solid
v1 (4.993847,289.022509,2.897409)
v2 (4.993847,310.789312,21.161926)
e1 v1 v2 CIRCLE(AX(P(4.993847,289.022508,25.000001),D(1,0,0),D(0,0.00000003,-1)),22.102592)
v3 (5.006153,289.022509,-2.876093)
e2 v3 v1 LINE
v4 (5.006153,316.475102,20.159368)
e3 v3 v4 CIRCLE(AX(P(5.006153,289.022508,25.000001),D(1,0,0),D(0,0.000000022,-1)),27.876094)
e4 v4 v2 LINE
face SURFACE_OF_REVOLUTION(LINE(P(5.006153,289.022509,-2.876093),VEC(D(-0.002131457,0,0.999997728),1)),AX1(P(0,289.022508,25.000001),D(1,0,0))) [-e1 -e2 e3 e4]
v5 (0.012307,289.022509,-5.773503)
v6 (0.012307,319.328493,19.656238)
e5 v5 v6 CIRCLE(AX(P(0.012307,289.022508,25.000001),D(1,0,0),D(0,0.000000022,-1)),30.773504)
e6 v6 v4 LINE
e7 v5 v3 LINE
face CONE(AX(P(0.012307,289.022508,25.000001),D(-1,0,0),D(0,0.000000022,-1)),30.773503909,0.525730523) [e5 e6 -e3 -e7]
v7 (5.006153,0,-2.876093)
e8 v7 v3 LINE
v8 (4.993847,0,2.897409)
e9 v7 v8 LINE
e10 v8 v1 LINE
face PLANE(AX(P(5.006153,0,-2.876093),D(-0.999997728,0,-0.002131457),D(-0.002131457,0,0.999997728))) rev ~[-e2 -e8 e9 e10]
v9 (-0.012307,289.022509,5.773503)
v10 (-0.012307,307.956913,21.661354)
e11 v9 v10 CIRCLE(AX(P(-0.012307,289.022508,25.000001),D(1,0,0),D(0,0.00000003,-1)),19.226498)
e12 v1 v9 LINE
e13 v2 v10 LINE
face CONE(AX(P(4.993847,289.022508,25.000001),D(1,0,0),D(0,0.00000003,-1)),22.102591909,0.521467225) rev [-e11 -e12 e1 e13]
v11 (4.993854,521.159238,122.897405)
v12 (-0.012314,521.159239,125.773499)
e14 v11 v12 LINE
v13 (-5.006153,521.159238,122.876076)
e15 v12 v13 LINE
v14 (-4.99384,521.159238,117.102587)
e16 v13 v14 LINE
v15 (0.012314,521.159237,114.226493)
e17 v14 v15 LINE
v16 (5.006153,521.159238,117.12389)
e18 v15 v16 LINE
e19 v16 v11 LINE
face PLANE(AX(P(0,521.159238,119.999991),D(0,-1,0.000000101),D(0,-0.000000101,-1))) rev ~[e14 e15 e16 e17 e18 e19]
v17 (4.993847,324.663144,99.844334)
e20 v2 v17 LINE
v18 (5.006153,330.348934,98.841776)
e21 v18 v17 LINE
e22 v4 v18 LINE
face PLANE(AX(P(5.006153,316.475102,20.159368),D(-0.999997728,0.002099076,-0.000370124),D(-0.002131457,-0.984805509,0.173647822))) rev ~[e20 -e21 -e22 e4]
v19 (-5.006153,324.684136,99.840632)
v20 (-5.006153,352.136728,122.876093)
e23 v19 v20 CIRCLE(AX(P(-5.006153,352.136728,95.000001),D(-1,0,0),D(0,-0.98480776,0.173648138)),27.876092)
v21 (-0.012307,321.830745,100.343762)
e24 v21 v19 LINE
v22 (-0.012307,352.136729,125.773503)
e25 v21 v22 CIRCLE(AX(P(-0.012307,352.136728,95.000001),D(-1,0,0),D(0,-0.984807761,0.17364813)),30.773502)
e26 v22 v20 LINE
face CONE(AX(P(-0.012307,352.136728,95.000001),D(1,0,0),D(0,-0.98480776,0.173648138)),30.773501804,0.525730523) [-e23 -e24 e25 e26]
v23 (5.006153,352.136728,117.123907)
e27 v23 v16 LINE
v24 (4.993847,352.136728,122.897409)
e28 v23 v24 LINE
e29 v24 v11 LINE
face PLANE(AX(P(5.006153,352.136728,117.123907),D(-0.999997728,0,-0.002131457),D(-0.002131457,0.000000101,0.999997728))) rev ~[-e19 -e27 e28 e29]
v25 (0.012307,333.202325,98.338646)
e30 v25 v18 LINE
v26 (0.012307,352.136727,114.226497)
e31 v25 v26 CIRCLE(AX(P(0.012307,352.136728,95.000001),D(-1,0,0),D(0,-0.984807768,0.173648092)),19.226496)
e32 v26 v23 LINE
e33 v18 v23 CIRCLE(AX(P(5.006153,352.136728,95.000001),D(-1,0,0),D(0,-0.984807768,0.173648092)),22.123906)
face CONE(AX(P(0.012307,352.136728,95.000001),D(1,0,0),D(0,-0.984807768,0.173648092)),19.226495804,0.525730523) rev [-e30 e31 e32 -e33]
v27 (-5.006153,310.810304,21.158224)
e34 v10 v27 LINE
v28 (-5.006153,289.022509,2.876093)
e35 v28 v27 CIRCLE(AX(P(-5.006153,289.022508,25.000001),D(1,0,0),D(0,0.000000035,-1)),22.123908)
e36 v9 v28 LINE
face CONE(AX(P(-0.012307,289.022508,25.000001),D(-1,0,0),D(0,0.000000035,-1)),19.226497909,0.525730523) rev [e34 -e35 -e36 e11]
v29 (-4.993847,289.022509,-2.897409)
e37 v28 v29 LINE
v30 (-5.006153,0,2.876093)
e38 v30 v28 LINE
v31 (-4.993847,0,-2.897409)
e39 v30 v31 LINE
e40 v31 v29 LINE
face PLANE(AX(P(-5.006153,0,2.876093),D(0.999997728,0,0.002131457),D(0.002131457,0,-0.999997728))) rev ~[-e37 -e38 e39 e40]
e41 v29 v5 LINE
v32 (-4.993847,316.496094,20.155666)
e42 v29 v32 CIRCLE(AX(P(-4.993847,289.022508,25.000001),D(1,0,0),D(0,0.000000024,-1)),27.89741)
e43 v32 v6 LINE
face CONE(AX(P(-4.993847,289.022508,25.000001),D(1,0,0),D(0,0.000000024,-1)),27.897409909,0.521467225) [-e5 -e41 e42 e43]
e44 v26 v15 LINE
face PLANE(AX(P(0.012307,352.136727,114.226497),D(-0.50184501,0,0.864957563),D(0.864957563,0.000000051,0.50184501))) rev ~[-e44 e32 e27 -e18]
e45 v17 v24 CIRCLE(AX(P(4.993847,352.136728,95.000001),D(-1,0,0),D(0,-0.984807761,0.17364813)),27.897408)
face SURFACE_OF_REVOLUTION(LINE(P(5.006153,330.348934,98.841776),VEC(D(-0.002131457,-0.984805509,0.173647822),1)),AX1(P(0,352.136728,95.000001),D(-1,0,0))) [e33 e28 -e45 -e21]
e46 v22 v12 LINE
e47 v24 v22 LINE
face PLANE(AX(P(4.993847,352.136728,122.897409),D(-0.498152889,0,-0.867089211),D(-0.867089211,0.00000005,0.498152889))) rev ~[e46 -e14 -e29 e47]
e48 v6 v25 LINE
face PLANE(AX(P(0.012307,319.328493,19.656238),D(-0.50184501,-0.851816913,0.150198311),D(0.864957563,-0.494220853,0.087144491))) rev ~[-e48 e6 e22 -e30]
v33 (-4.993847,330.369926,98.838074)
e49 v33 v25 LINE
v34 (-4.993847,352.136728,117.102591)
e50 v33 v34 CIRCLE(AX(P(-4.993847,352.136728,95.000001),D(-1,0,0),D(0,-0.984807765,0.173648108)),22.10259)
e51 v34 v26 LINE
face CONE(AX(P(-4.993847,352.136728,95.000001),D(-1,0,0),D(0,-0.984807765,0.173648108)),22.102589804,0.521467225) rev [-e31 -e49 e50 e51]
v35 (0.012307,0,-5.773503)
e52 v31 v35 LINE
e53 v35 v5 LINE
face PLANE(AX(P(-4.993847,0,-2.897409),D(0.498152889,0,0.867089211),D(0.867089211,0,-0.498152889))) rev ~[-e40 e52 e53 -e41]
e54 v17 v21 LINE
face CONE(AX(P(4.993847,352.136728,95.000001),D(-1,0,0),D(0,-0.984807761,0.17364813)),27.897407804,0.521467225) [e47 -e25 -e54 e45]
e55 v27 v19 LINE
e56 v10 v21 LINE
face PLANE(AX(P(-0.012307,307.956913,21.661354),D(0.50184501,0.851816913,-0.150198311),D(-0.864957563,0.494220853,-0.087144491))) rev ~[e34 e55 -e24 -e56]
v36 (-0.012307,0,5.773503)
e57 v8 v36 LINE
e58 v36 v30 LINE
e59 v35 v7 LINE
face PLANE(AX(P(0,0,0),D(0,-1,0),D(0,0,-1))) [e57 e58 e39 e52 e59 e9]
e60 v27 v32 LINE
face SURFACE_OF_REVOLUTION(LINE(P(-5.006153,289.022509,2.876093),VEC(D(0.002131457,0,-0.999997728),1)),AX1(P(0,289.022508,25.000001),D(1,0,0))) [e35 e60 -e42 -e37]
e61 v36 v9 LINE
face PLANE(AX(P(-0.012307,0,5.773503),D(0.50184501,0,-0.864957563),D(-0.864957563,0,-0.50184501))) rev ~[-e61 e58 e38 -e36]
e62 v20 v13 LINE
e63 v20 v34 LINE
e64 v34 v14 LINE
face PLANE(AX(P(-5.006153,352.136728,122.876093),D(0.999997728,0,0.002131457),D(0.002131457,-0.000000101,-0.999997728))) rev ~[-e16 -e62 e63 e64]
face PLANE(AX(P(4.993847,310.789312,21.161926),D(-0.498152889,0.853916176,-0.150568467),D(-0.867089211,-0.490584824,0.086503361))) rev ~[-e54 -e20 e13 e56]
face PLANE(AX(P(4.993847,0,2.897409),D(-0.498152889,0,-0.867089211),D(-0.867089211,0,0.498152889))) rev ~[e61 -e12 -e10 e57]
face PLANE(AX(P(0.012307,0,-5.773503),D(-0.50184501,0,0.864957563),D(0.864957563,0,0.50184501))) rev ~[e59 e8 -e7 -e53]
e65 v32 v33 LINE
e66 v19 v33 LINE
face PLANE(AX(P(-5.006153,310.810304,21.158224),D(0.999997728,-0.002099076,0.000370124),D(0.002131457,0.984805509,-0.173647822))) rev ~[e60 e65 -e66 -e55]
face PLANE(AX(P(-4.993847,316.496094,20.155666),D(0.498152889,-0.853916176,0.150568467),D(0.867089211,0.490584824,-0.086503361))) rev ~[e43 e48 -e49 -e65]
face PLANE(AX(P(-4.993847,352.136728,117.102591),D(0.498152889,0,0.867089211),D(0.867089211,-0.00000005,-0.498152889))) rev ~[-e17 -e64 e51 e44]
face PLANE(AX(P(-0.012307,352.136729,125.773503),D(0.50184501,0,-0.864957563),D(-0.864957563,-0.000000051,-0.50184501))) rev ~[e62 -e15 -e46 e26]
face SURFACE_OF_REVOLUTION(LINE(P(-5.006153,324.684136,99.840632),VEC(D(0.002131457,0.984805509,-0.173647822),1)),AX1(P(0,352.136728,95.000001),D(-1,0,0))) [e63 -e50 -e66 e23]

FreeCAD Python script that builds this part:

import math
import FreeCAD as App
import Part
import Sketcher
Q = App.Units.Quantity

doc = App.newDocument("Part")
body = doc.addObject("PartDesign::Body", "Body")

# Sketch on XZ plane
sketch1 = body.newObject("Sketcher::SketchObject", "Sketch")
sketch1.AttachmentSupport = (doc.getObject("XZ_Plane"), [""])
sketch1.MapMode = "FlatFace"
sketch1.addGeometry(Part.LineSegment(App.Vector(0.012307, -5.773503, 0), App.Vector(5.006153, -2.876093, 0)), False)
sketch1.addGeometry(Part.LineSegment(App.Vector(5.006153, -2.876093, 0), App.Vector(4.993847, 2.897409, 0)), False)
sketch1.addGeometry(Part.LineSegment(App.Vector(4.993847, 2.897409, 0), App.Vector(-0.012307, 5.773503, 0)), False)
sketch1.addGeometry(Part.LineSegment(App.Vector(-0.012307, 5.773503, 0), App.Vector(-5.006153, 2.876093, 0)), False)
sketch1.addGeometry(Part.LineSegment(App.Vector(-5.006153, 2.876093, 0), App.Vector(-4.993847, -2.897409, 0)), False)
sketch1.addGeometry(Part.LineSegment(App.Vector(-4.993847, -2.897409, 0), App.Vector(0.012307, -5.773503, 0)), False)
sketch1.addConstraint(Sketcher.Constraint("Coincident", 0, 2, 1, 1))
sketch1.addConstraint(Sketcher.Constraint("Coincident", 1, 2, 2, 1))
sketch1.addConstraint(Sketcher.Constraint("Coincident", 2, 2, 3, 1))
sketch1.addConstraint(Sketcher.Constraint("Coincident", 3, 2, 4, 1))
sketch1.addConstraint(Sketcher.Constraint("Coincident", 4, 2, 5, 1))
sketch1.addConstraint(Sketcher.Constraint("Coincident", 5, 2, 0, 1))
sketch1.addConstraint(Sketcher.Constraint("Symmetric", 0, 2, 3, 2, -1, 1))
sketch1.addConstraint(Sketcher.Constraint("Symmetric", 1, 2, 4, 2, -1, 1))
sketch1.addConstraint(Sketcher.Constraint("Symmetric", 2, 2, 5, 2, -1, 1))
sketch1.addConstraint(Sketcher.Constraint("Equal", 0, 1))
sketch1.addConstraint(Sketcher.Constraint("Equal", 1, 2))
sketch1.addConstraint(Sketcher.Constraint("DistanceX", 3, 2, 1, 2, 10.0))
sketch1.addConstraint(Sketcher.Constraint("DistanceY", -1, 1, 1, 2, 2.897409))
sketch1.addConstraint(Sketcher.Constraint("DistanceX", 2, 2, 0, 2, 5.01846))
sketch1.addConstraint(Sketcher.Constraint("DistanceY", 3, 2, 2, 2, 2.89741))

# Sketch on YZ plane
sketch2 = body.newObject("Sketcher::SketchObject", "Sketch001")
sketch2.AttachmentSupport = (doc.getObject("YZ_Plane"), [""])
sketch2.MapMode = "FlatFace"
sketch2.addGeometry(Part.LineSegment(App.Vector(0, 0, 0), App.Vector(289.022509, 0, 0)), False)
sketch2.addGeometry(Part.ArcOfCircle(Part.Circle(App.Vector(289.022508, 25.000001, 0), App.Vector(0, 0, 1), 25.000001), math.radians(-89.999998), math.radians(-10.000001)), False)
sketch2.addGeometry(Part.LineSegment(App.Vector(313.642703, 20.658796, 0), App.Vector(327.516535, 99.341204, 0)), False)
sketch2.addGeometry(Part.ArcOfCircle(Part.Circle(App.Vector(352.136728, 95.000001, 0), App.Vector(0, 0, 1), 24.999999), math.radians(90), math.radians(170.000003)), False)
sketch2.addGeometry(Part.LineSegment(App.Vector(352.136728, 120, 0), App.Vector(521.159238, 120, 0)), False)
sketch2.addConstraint(Sketcher.Constraint("Tangent", 0, 2, 1, 1))
sketch2.addConstraint(Sketcher.Constraint("Tangent", 1, 2, 2, 1))
sketch2.addConstraint(Sketcher.Constraint("Tangent", 2, 2, 3, 2))
sketch2.addConstraint(Sketcher.Constraint("Tangent", 3, 1, 4, 1))
sketch2.addConstraint(Sketcher.Constraint("Horizontal", 0))
sketch2.addConstraint(Sketcher.Constraint("Horizontal", 4))
sketch2.addConstraint(Sketcher.Constraint("Coincident", 0, 1, -1, 1))
sketch2.addConstraint(Sketcher.Constraint("Radius", 1, 25.000001))
sketch2.addConstraint(Sketcher.Constraint("Radius", 3, 24.999999))
sketch2.addConstraint(Sketcher.Constraint("Angle", 2, Q("80 deg")))
sketch2.addConstraint(Sketcher.Constraint("DistanceY", -1, 1, 3, 3, 95.000001))
sketch2.addConstraint(Sketcher.Constraint("DistanceX", 0, 1, 0, 2, 289.022509))
sketch2.addConstraint(Sketcher.Constraint("DistanceX", 4, 1, 4, 2, 169.02251))
doc.recompute()

additivepipe = body.newObject("PartDesign::AdditivePipe", "AdditivePipe")
additivepipe.Profile = sketch1
additivepipe.Spine = (sketch2, ["Edge1", "Edge2", "Edge3", "Edge4", "Edge5"])

doc.recompute()
